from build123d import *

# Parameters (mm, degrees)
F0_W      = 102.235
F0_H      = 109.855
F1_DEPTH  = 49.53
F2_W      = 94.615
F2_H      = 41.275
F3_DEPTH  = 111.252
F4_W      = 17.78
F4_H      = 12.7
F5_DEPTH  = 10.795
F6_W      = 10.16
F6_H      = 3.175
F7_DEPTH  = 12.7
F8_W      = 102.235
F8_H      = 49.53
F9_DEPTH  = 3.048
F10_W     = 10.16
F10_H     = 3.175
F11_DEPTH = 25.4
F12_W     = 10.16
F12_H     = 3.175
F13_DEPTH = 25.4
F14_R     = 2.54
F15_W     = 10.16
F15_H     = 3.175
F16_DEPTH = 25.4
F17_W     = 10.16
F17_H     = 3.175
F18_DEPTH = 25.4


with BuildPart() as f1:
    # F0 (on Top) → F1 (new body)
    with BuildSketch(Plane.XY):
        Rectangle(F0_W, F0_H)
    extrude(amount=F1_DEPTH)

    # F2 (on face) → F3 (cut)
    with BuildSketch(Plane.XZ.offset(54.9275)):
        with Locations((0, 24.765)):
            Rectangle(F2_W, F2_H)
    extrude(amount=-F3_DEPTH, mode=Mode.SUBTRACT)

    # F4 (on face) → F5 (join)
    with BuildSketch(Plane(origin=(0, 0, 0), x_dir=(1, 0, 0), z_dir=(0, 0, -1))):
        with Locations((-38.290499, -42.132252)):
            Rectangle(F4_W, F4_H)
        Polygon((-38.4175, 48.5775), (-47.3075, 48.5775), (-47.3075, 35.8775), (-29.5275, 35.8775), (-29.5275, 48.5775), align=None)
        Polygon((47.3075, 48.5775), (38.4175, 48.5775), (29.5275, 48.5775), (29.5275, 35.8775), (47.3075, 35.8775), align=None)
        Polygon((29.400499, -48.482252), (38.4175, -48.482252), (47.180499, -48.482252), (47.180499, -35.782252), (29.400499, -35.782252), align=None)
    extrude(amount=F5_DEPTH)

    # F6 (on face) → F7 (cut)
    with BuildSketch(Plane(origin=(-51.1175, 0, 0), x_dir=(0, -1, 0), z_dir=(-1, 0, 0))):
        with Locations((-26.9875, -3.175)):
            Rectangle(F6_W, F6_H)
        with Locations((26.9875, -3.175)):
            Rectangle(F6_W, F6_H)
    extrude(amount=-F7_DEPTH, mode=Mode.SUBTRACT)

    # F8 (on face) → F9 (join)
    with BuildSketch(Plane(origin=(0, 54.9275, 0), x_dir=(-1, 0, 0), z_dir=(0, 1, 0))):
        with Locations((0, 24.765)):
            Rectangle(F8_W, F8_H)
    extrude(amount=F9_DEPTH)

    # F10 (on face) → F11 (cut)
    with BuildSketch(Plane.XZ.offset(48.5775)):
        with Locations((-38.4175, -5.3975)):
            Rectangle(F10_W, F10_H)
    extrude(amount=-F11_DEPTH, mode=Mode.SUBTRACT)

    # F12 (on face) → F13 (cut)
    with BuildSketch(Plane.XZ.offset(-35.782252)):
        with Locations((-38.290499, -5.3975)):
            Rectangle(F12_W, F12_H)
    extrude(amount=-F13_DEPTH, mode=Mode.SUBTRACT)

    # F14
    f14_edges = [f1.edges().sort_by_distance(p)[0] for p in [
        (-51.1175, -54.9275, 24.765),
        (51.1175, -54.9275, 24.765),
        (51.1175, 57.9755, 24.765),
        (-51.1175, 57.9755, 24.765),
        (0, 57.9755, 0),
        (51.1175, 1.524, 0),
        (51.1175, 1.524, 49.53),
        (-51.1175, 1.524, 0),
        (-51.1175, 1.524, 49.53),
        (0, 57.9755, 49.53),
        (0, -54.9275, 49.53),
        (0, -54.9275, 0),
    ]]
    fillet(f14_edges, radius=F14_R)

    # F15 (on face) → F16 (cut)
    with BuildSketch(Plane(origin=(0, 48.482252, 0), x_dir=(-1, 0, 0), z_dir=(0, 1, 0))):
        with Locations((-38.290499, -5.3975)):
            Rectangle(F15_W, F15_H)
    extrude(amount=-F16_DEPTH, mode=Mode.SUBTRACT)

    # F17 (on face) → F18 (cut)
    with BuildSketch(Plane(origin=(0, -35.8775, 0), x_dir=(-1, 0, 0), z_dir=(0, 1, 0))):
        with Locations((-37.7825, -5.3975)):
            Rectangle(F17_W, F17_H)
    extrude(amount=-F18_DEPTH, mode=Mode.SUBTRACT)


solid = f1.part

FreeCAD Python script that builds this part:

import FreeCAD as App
import Part
import Sketcher
Q = App.Units.Quantity


def edges_at(feature, points):
    """Names of the edges that pass closest to the given points."""
    edges = feature.Shape.Edges
    near = lambda p: min(range(len(edges)), key=lambda i: edges[i].distToShape(Part.Vertex(*p))[0])
    return sorted({f"Edge{near(p) + 1}" for p in points})

doc = App.newDocument("Part")
params = doc.addObject("Spreadsheet::Sheet", "Params")
for row, (alias, value) in enumerate([
    ("sketch1_width", "4.025 in"),
    ("sketch1_height", "4.325 in"),
    ("pad1_length", "1.95 in"),
    ("sketch2_width", "3.725 in"),
    ("sketch2_height", "1.625 in"),
    ("pocket1_length", "4.38 in"),
    ("sketch3_width", "0.7 in"),
    ("sketch3_height", "0.5 in"),
    ("pad2_length", "0.425 in"),
    ("sketch4_width", "0.4 in"),
    ("sketch4_height", "0.125 in"),
    ("pocket2_length", "0.5 in"),
    ("sketch5_height", "1.95 in"),
    ("sketch5_width", "4.025 in"),
    ("pad3_length", "0.12 in"),
    ("sketch6_width", "0.4 in"),
    ("sketch6_height", "0.125 in"),
    ("pocket3_length", "1 in"),
    ("sketch7_width", "0.4 in"),
    ("sketch7_height", "0.125 in"),
    ("pocket4_length", "1 in"),
    ("fillet_radius", "0.1 in"),
    ("sketch8_width", "0.4 in"),
    ("sketch8_height", "0.125 in"),
    ("pocket5_length", "1 in"),
    ("sketch9_width", "0.4 in"),
    ("sketch9_height", "0.125 in"),
    ("pocket6_length", "1 in"),
], start=1):
    params.set(f"A{row}", alias)
    params.set(f"B{row}", "=" + value)
    params.setAlias(f"B{row}", alias)

body = doc.addObject("PartDesign::Body", "Body")

# Sketch on XY plane
sketch1 = body.newObject("Sketcher::SketchObject", "Sketch")
sketch1.AttachmentSupport = (doc.getObject("XY_Plane"), [""])
sketch1.MapMode = "FlatFace"
sketch1.addGeometry([
    Part.LineSegment(App.Vector(-51.1175, 54.9275, 0), App.Vector(-51.1175, -54.9275, 0)),
    Part.LineSegment(App.Vector(-51.1175, -54.9275, 0), App.Vector(51.1175, -54.9275, 0)),
    Part.LineSegment(App.Vector(51.1175, -54.9275, 0), App.Vector(51.1175, 54.9275, 0)),
    Part.LineSegment(App.Vector(51.1175, 54.9275, 0), App.Vector(-51.1175, 54.9275, 0)),
], False)
sketch1.addConstraint([
    Sketcher.Constraint("Coincident", 0, 2, 1, 1),
    Sketcher.Constraint("Coincident", 1, 2, 2, 1),
    Sketcher.Constraint("Coincident", 2, 2, 3, 1),
    Sketcher.Constraint("Coincident", 3, 2, 0, 1),
    Sketcher.Constraint("Vertical", 0),
    Sketcher.Constraint("Horizontal", 1),
    Sketcher.Constraint("Vertical", 2),
    Sketcher.Constraint("Horizontal", 3),
    Sketcher.Constraint("Symmetric", 0, 2, 2, 2, -1, 1),
    Sketcher.Constraint("DistanceX", 1, 1, 1, 2, Q("4.025 in")),
    Sketcher.Constraint("DistanceY", 0, 2, 0, 1, Q("4.325 in")),
])
sketch1.setExpression("Constraints[9]", "Params.sketch1_width")
sketch1.setExpression("Constraints[10]", "Params.sketch1_height")
pad1 = body.newObject("PartDesign::Pad", "Pad")
pad1.Profile = sketch1
pad1.setExpression("Length", "Params.pad1_length")

# Sketch on XZ plane
sketch2 = body.newObject("Sketcher::SketchObject", "Sketch001")
sketch2.AttachmentSupport = (doc.getObject("XZ_Plane"), [""])
sketch2.MapMode = "FlatFace"
sketch2.AttachmentOffset = App.Placement(App.Vector(0, 0, 2.1625 * 25.4), App.Rotation())
sketch2.addGeometry([
    Part.LineSegment(App.Vector(-47.3075, 45.4025, 0), App.Vector(-47.3075, 4.1275, 0)),
    Part.LineSegment(App.Vector(-47.3075, 4.1275, 0), App.Vector(47.3075, 4.1275, 0)),
    Part.LineSegment(App.Vector(47.3075, 4.1275, 0), App.Vector(47.3075, 45.4025, 0)),
    Part.LineSegment(App.Vector(47.3075, 45.4025, 0), App.Vector(-47.3075, 45.4025, 0)),
], False)
sketch2.addConstraint([
    Sketcher.Constraint("Coincident", 0, 2, 1, 1),
    Sketcher.Constraint("Coincident", 1, 2, 2, 1),
    Sketcher.Constraint("Coincident", 2, 2, 3, 1),
    Sketcher.Constraint("Coincident", 3, 2, 0, 1),
    Sketcher.Constraint("Vertical", 0),
    Sketcher.Constraint("Horizontal", 1),
    Sketcher.Constraint("Vertical", 2),
    Sketcher.Constraint("Horizontal", 3),
    Sketcher.Constraint("DistanceX", 1, 1, 1, 2, Q("3.725 in")),
    Sketcher.Constraint("DistanceY", 0, 2, 0, 1, Q("1.625 in")),
    Sketcher.Constraint("DistanceX", 0, 2, -1, 1, Q("1.8625 in")),
    Sketcher.Constraint("DistanceY", -1, 1, 0, 2, Q("0.1625 in")),
])
sketch2.setExpression("Constraints[8]", "Params.sketch2_width")
sketch2.setExpression("Constraints[9]", "Params.sketch2_height")
pocket1 = body.newObject("PartDesign::Pocket", "Pocket")
pocket1.Profile = sketch2
pocket1.setExpression("Length", "Params.pocket1_length")

# Sketch on XY plane
sketch3 = body.newObject("Sketcher::SketchObject", "Sketch002")
sketch3.AttachmentSupport = (doc.getObject("XY_Plane"), [""])
sketch3.MapMode = "FlatFace"
sketch3.addGeometry([
    Part.LineSegment(App.Vector(-47.180499, 35.782252, 0), App.Vector(-47.180499, 48.482252, 0)),  # 0
    Part.LineSegment(App.Vector(-47.180499, 48.482252, 0), App.Vector(-29.400499, 48.482252, 0)),  # 1
    Part.LineSegment(App.Vector(-29.400499, 48.482252, 0), App.Vector(-29.400499, 35.782252, 0)),  # 2
    Part.LineSegment(App.Vector(-29.400499, 35.782252, 0), App.Vector(-47.180499, 35.782252, 0)),  # 3
    Part.LineSegment(App.Vector(-47.3075, -48.5775, 0), App.Vector(-47.3075, -35.8775, 0)),  # 4
    Part.LineSegment(App.Vector(-47.3075, -35.8775, 0), App.Vector(-29.5275, -35.8775, 0)),  # 5
    Part.LineSegment(App.Vector(-29.5275, -35.8775, 0), App.Vector(-29.5275, -48.5775, 0)),  # 6
    Part.LineSegment(App.Vector(-29.5275, -48.5775, 0), App.Vector(-47.3075, -48.5775, 0)),  # 7
    Part.LineSegment(App.Vector(47.3075, -48.5775, 0), App.Vector(29.5275, -48.5775, 0)),  # 8
    Part.LineSegment(App.Vector(29.5275, -48.5775, 0), App.Vector(29.5275, -35.8775, 0)),  # 9
    Part.LineSegment(App.Vector(29.5275, -35.8775, 0), App.Vector(47.3075, -35.8775, 0)),  # 10
    Part.LineSegment(App.Vector(47.3075, -35.8775, 0), App.Vector(47.3075, -48.5775, 0)),  # 11
    Part.LineSegment(App.Vector(29.400499, 48.482252, 0), App.Vector(47.180499, 48.482252, 0)),  # 12
    Part.LineSegment(App.Vector(47.180499, 48.482252, 0), App.Vector(47.180499, 35.782252, 0)),  # 13
    Part.LineSegment(App.Vector(47.180499, 35.782252, 0), App.Vector(29.400499, 35.782252, 0)),  # 14
    Part.LineSegment(App.Vector(29.400499, 35.782252, 0), App.Vector(29.400499, 48.482252, 0)),  # 15
], False)
sketch3.addConstraint([
    Sketcher.Constraint("Coincident", 0, 2, 1, 1),
    Sketcher.Constraint("Coincident", 1, 2, 2, 1),
    Sketcher.Constraint("Coincident", 2, 2, 3, 1),
    Sketcher.Constraint("Coincident", 3, 2, 0, 1),
    Sketcher.Constraint("Coincident", 4, 2, 5, 1),
    Sketcher.Constraint("Coincident", 5, 2, 6, 1),
    Sketcher.Constraint("Coincident", 6, 2, 7, 1),
    Sketcher.Constraint("Coincident", 7, 2, 4, 1),
    Sketcher.Constraint("Coincident", 8, 2, 9, 1),
    Sketcher.Constraint("Coincident", 9, 2, 10, 1),
    Sketcher.Constraint("Coincident", 10, 2, 11, 1),
    Sketcher.Constraint("Coincident", 11, 2, 8, 1),
    Sketcher.Constraint("Coincident", 12, 2, 13, 1),
    Sketcher.Constraint("Coincident", 13, 2, 14, 1),
    Sketcher.Constraint("Coincident", 14, 2, 15, 1),
    Sketcher.Constraint("Coincident", 15, 2, 12, 1),
    Sketcher.Constraint("Vertical", 0),
    Sketcher.Constraint("Horizontal", 1),
    Sketcher.Constraint("Vertical", 2),
    Sketcher.Constraint("Horizontal", 3),
    Sketcher.Constraint("Vertical", 4),
    Sketcher.Constraint("Horizontal", 5),
    Sketcher.Constraint("Vertical", 6),
    Sketcher.Constraint("Horizontal", 7),
    Sketcher.Constraint("Horizontal", 8),
    Sketcher.Constraint("Vertical", 9),
    Sketcher.Constraint("Horizontal", 10),
    Sketcher.Constraint("Vertical", 11),
    Sketcher.Constraint("Horizontal", 12),
    Sketcher.Constraint("Vertical", 13),
    Sketcher.Constraint("Horizontal", 14),
    Sketcher.Constraint("Vertical", 15),
    Sketcher.Constraint("Symmetric", 6, 2, 8, 2, -2),
    Sketcher.Constraint("Symmetric", 4, 2, 10, 2, -2),
    Sketcher.Constraint("Symmetric", 0, 2, 12, 2, -2),
    Sketcher.Constraint("Symmetric", 2, 2, 14, 2, -2),
    Sketcher.Constraint("Equal", 3, 5),
    Sketcher.Constraint("Equal", 2, 4),
    Sketcher.Constraint("DistanceX", 1, 1, 1, 2, Q("0.7 in")),
    Sketcher.Constraint("DistanceY", 0, 1, 0, 2, Q("0.5 in")),
    Sketcher.Constraint("DistanceX", 2, 2, 8, 2, Q("2.32 in")),
    Sketcher.Constraint("DistanceX", 4, 2, 3, 2, Q("0.005 in")),
    Sketcher.Constraint("DistanceY", 4, 2, -1, 1, Q("1.4125 in")),
    Sketcher.Constraint("DistanceY", 4, 2, 3, 2, Q("71.659752 mm")),
])
sketch3.setExpression("Constraints[38]", "Params.sketch3_width")
sketch3.setExpression("Constraints[39]", "Params.sketch3_height")
pad2 = body.newObject("PartDesign::Pad", "Pad001")
pad2.Profile = sketch3
pad2.setExpression("Length", "Params.pad2_length")
pad2.Reversed = True

# Sketch on YZ plane
sketch4 = body.newObject("Sketcher::SketchObject", "Sketch003")
sketch4.AttachmentSupport = (doc.getObject("YZ_Plane"), [""])
sketch4.MapMode = "FlatFace"
sketch4.AttachmentOffset = App.Placement(App.Vector(0, 0, -2.0125 * 25.4), App.Rotation())
sketch4.addGeometry([
    Part.LineSegment(App.Vector(32.0675, -1.5875, 0), App.Vector(32.0675, -4.7625, 0)),  # 0
    Part.LineSegment(App.Vector(32.0675, -4.7625, 0), App.Vector(21.9075, -4.7625, 0)),  # 1
    Part.LineSegment(App.Vector(21.9075, -4.7625, 0), App.Vector(21.9075, -1.5875, 0)),  # 2
    Part.LineSegment(App.Vector(21.9075, -1.5875, 0), App.Vector(32.0675, -1.5875, 0)),  # 3
    Part.LineSegment(App.Vector(-21.9075, -1.5875, 0), App.Vector(-21.9075, -4.7625, 0)),  # 4
    Part.LineSegment(App.Vector(-21.9075, -4.7625, 0), App.Vector(-32.0675, -4.7625, 0)),  # 5
    Part.LineSegment(App.Vector(-32.0675, -4.7625, 0), App.Vector(-32.0675, -1.5875, 0)),  # 6
    Part.LineSegment(App.Vector(-32.0675, -1.5875, 0), App.Vector(-21.9075, -1.5875, 0)),  # 7
], False)
sketch4.addConstraint([
    Sketcher.Constraint("Coincident", 0, 2, 1, 1),
    Sketcher.Constraint("Coincident", 1, 2, 2, 1),
    Sketcher.Constraint("Coincident", 2, 2, 3, 1),
    Sketcher.Constraint("Coincident", 3, 2, 0, 1),
    Sketcher.Constraint("Coincident", 4, 2, 5, 1),
    Sketcher.Constraint("Coincident", 5, 2, 6, 1),
    Sketcher.Constraint("Coincident", 6, 2, 7, 1),
    Sketcher.Constraint("Coincident", 7, 2, 4, 1),
    Sketcher.Constraint("Vertical", 0),
    Sketcher.Constraint("Horizontal", 1),
    Sketcher.Constraint("Vertical", 2),
    Sketcher.Constraint("Horizontal", 3),
    Sketcher.Constraint("Vertical", 4),
    Sketcher.Constraint("Horizontal", 5),
    Sketcher.Constraint("Vertical", 6),
    Sketcher.Constraint("Horizontal", 7),
    Sketcher.Constraint("Symmetric", 1, 2, 4, 2, -2),
    Sketcher.Constraint("Symmetric", 3, 2, 6, 2, -2),
    Sketcher.Constraint("DistanceX", 1, 2, 1, 1, Q("0.4 in")),
    Sketcher.Constraint("DistanceY", 0, 2, 0, 1, Q("0.125 in")),
    Sketcher.Constraint("DistanceY", 0, 2, -1, 1, Q("0.1875 in")),
    Sketcher.Constraint("DistanceX", 4, 2, 1, 2, Q("1.725 in")),
])
sketch4.setExpression("Constraints[18]", "Params.sketch4_width")
sketch4.setExpression("Constraints[19]", "Params.sketch4_height")
pocket2 = body.newObject("PartDesign::Pocket", "Pocket001")
pocket2.Profile = sketch4
pocket2.setExpression("Length", "Params.pocket2_length")
pocket2.Reversed = True

# Sketch on XZ plane
sketch5 = body.newObject("Sketcher::SketchObject", "Sketch004")
sketch5.AttachmentSupport = (doc.getObject("XZ_Plane"), [""])
sketch5.MapMode = "FlatFace"
sketch5.AttachmentOffset = App.Placement(App.Vector(0, 0, -2.1625 * 25.4), App.Rotation())
sketch5.addGeometry([
    Part.LineSegment(App.Vector(51.1175, 49.53, 0), App.Vector(51.1175, 0, 0)),
    Part.LineSegment(App.Vector(51.1175, 0, 0), App.Vector(-51.1175, 0, 0)),
    Part.LineSegment(App.Vector(-51.1175, 0, 0), App.Vector(-51.1175, 49.53, 0)),
    Part.LineSegment(App.Vector(-51.1175, 49.53, 0), App.Vector(51.1175, 49.53, 0)),
], False)
sketch5.addConstraint([
    Sketcher.Constraint("Coincident", 0, 2, 1, 1),
    Sketcher.Constraint("Coincident", 1, 2, 2, 1),
    Sketcher.Constraint("Coincident", 2, 2, 3, 1),
    Sketcher.Constraint("Coincident", 3, 2, 0, 1),
    Sketcher.Constraint("Vertical", 0),
    Sketcher.Constraint("Horizontal", 1),
    Sketcher.Constraint("Vertical", 2),
    Sketcher.Constraint("Horizontal", 3),
    Sketcher.Constraint("Symmetric", 0, 2, 1, 2, -1, 1),
    Sketcher.Constraint("DistanceY", 0, 2, 0, 1, Q("1.95 in")),
    Sketcher.Constraint("DistanceX", 1, 2, 1, 1, Q("4.025 in")),
])
sketch5.setExpression("Constraints[9]", "Params.sketch5_height")
sketch5.setExpression("Constraints[10]", "Params.sketch5_width")
pad3 = body.newObject("PartDesign::Pad", "Pad002")
pad3.Profile = sketch5
pad3.setExpression("Length", "Params.pad3_length")
pad3.Reversed = True

# Sketch on XZ plane
sketch6 = body.newObject("Sketcher::SketchObject", "Sketch005")
sketch6.AttachmentSupport = (doc.getObject("XZ_Plane"), [""])
sketch6.MapMode = "FlatFace"
sketch6.AttachmentOffset = App.Placement(App.Vector(0, 0, 1.9125 * 25.4), App.Rotation())
sketch6.addGeometry([
    Part.LineSegment(App.Vector(-43.4975, -3.81, 0), App.Vector(-43.4975, -6.985, 0)),
    Part.LineSegment(App.Vector(-43.4975, -6.985, 0), App.Vector(-33.3375, -6.985, 0)),
    Part.LineSegment(App.Vector(-33.3375, -6.985, 0), App.Vector(-33.3375, -3.81, 0)),
    Part.LineSegment(App.Vector(-33.3375, -3.81, 0), App.Vector(-43.4975, -3.81, 0)),
], False)
sketch6.addConstraint([
    Sketcher.Constraint("Coincident", 0, 2, 1, 1),
    Sketcher.Constraint("Coincident", 1, 2, 2, 1),
    Sketcher.Constraint("Coincident", 2, 2, 3, 1),
    Sketcher.Constraint("Coincident", 3, 2, 0, 1),
    Sketcher.Constraint("Vertical", 0),
    Sketcher.Constraint("Horizontal", 1),
    Sketcher.Constraint("Vertical", 2),
    Sketcher.Constraint("Horizontal", 3),
    Sketcher.Constraint("DistanceX", 1, 1, 1, 2, Q("0.4 in")),
    Sketcher.Constraint("DistanceY", 0, 2, 0, 1, Q("0.125 in")),
    Sketcher.Constraint("DistanceY", 2, 2, -1, 1, Q("0.15 in")),
    Sketcher.Constraint("DistanceX", 1, 2, -1, 1, Q("1.3125 in")),
])
sketch6.setExpression("Constraints[8]", "Params.sketch6_width")
sketch6.setExpression("Constraints[9]", "Params.sketch6_height")
pocket3 = body.newObject("PartDesign::Pocket", "Pocket002")
pocket3.Profile = sketch6
pocket3.setExpression("Length", "Params.pocket3_length")

# Sketch on XZ plane
sketch7 = body.newObject("Sketcher::SketchObject", "Sketch006")
sketch7.AttachmentSupport = (doc.getObject("XZ_Plane"), [""])
sketch7.MapMode = "FlatFace"
sketch7.AttachmentOffset = App.Placement(App.Vector(0, 0, -35.782252), App.Rotation())
sketch7.addGeometry([
    Part.LineSegment(App.Vector(-43.370499, -3.81, 0), App.Vector(-43.370499, -6.985, 0)),
    Part.LineSegment(App.Vector(-43.370499, -6.985, 0), App.Vector(-33.210499, -6.985, 0)),
    Part.LineSegment(App.Vector(-33.210499, -6.985, 0), App.Vector(-33.210499, -3.81, 0)),
    Part.LineSegment(App.Vector(-33.210499, -3.81, 0), App.Vector(-43.370499, -3.81, 0)),
], False)
sketch7.addConstraint([
    Sketcher.Constraint("Coincident", 0, 2, 1, 1),
    Sketcher.Constraint("Coincident", 1, 2, 2, 1),
    Sketcher.Constraint("Coincident", 2, 2, 3, 1),
    Sketcher.Constraint("Coincident", 3, 2, 0, 1),
    Sketcher.Constraint("Vertical", 0),
    Sketcher.Constraint("Horizontal", 1),
    Sketcher.Constraint("Vertical", 2),
    Sketcher.Constraint("Horizontal", 3),
    Sketcher.Constraint("DistanceX", 1, 1, 1, 2, Q("0.4 in")),
    Sketcher.Constraint("DistanceY", 0, 2, 0, 1, Q("0.125 in")),
    Sketcher.Constraint("DistanceY", 2, 2, -1, 1, Q("0.15 in")),
    Sketcher.Constraint("DistanceX", 0, 2, -1, 1, Q("1.7075 in")),
])
sketch7.setExpression("Constraints[8]", "Params.sketch7_width")
sketch7.setExpression("Constraints[9]", "Params.sketch7_height")
pocket4 = body.newObject("PartDesign::Pocket", "Pocket003")
pocket4.Profile = sketch7
pocket4.setExpression("Length", "Params.pocket4_length")
doc.recompute()

fillet = body.newObject("PartDesign::Fillet", "Fillet")
fillet.Base = (pocket4, edges_at(pocket4, [
    (-51.117, -54.928, 24.765),
    (51.117, -54.928, 24.765),
    (51.117, 57.975, 24.765),
    (-51.117, 57.975, 24.765),
    (0, 57.975, 0),
    (51.117, 1.524, 0),
    (51.117, 1.524, 49.53),
    (-51.117, 1.524, 0),
    (-51.117, 1.524, 49.53),
    (0, 57.975, 49.53),
    (0, -54.928, 49.53),
    (0, -54.928, 0),
]))
fillet.setExpression("Radius", "Params.fillet_radius")

# Sketch on XZ plane
sketch8 = body.newObject("Sketcher::SketchObject", "Sketch007")
sketch8.AttachmentSupport = (doc.getObject("XZ_Plane"), [""])
sketch8.MapMode = "FlatFace"
sketch8.AttachmentOffset = App.Placement(App.Vector(0, 0, -48.482252), App.Rotation())
sketch8.addGeometry([
    Part.LineSegment(App.Vector(43.370499, -3.81, 0), App.Vector(43.370499, -6.985, 0)),
    Part.LineSegment(App.Vector(43.370499, -6.985, 0), App.Vector(33.210499, -6.985, 0)),
    Part.LineSegment(App.Vector(33.210499, -6.985, 0), App.Vector(33.210499, -3.81, 0)),
    Part.LineSegment(App.Vector(33.210499, -3.81, 0), App.Vector(43.370499, -3.81, 0)),
], False)
sketch8.addConstraint([
    Sketcher.Constraint("Coincident", 0, 2, 1, 1),
    Sketcher.Constraint("Coincident", 1, 2, 2, 1),
    Sketcher.Constraint("Coincident", 2, 2, 3, 1),
    Sketcher.Constraint("Coincident", 3, 2, 0, 1),
    Sketcher.Constraint("Vertical", 0),
    Sketcher.Constraint("Horizontal", 1),
    Sketcher.Constraint("Vertical", 2),
    Sketcher.Constraint("Horizontal", 3),
    Sketcher.Constraint("DistanceX", 1, 2, 1, 1, Q("0.4 in")),
    Sketcher.Constraint("DistanceY", 0, 2, 0, 1, Q("0.125 in")),
    Sketcher.Constraint("DistanceY", 2, 2, -1, 1, Q("0.15 in")),
    Sketcher.Constraint("DistanceX", -1, 1, 0, 2, Q("1.7075 in")),
])
sketch8.setExpression("Constraints[8]", "Params.sketch8_width")
sketch8.setExpression("Constraints[9]", "Params.sketch8_height")
pocket5 = body.newObject("PartDesign::Pocket", "Pocket004")
pocket5.Profile = sketch8
pocket5.setExpression("Length", "Params.pocket5_length")
pocket5.Reversed = True

# Sketch on XZ plane
sketch9 = body.newObject("Sketcher::SketchObject", "Sketch008")
sketch9.AttachmentSupport = (doc.getObject("XZ_Plane"), [""])
sketch9.MapMode = "FlatFace"
sketch9.AttachmentOffset = App.Placement(App.Vector(0, 0, 1.4125 * 25.4), App.Rotation())
sketch9.addGeometry([
    Part.LineSegment(App.Vector(42.8625, -3.81, 0), App.Vector(42.8625, -6.985, 0)),
    Part.LineSegment(App.Vector(42.8625, -6.985, 0), App.Vector(32.7025, -6.985, 0)),
    Part.LineSegment(App.Vector(32.7025, -6.985, 0), App.Vector(32.7025, -3.81, 0)),
    Part.LineSegment(App.Vector(32.7025, -3.81, 0), App.Vector(42.8625, -3.81, 0)),
], False)
sketch9.addConstraint([
    Sketcher.Constraint("Coincident", 0, 2, 1, 1),
    Sketcher.Constraint("Coincident", 1, 2, 2, 1),
    Sketcher.Constraint("Coincident", 2, 2, 3, 1),
    Sketcher.Constraint("Coincident", 3, 2, 0, 1),
    Sketcher.Constraint("Vertical", 0),
    Sketcher.Constraint("Horizontal", 1),
    Sketcher.Constraint("Vertical", 2),
    Sketcher.Constraint("Horizontal", 3),
    Sketcher.Constraint("DistanceX", 1, 2, 1, 1, Q("0.4 in")),
    Sketcher.Constraint("DistanceY", 0, 2, 0, 1, Q("0.125 in")),
    Sketcher.Constraint("DistanceY", 2, 2, -1, 1, Q("0.15 in")),
    Sketcher.Constraint("DistanceX", -1, 1, 0, 2, Q("1.6875 in")),
])
sketch9.setExpression("Constraints[8]", "Params.sketch9_width")
sketch9.setExpression("Constraints[9]", "Params.sketch9_height")
pocket6 = body.newObject("PartDesign::Pocket", "Pocket005")
pocket6.Profile = sketch9
pocket6.setExpression("Length", "Params.pocket6_length")
pocket6.Reversed = True

doc.recompute()
